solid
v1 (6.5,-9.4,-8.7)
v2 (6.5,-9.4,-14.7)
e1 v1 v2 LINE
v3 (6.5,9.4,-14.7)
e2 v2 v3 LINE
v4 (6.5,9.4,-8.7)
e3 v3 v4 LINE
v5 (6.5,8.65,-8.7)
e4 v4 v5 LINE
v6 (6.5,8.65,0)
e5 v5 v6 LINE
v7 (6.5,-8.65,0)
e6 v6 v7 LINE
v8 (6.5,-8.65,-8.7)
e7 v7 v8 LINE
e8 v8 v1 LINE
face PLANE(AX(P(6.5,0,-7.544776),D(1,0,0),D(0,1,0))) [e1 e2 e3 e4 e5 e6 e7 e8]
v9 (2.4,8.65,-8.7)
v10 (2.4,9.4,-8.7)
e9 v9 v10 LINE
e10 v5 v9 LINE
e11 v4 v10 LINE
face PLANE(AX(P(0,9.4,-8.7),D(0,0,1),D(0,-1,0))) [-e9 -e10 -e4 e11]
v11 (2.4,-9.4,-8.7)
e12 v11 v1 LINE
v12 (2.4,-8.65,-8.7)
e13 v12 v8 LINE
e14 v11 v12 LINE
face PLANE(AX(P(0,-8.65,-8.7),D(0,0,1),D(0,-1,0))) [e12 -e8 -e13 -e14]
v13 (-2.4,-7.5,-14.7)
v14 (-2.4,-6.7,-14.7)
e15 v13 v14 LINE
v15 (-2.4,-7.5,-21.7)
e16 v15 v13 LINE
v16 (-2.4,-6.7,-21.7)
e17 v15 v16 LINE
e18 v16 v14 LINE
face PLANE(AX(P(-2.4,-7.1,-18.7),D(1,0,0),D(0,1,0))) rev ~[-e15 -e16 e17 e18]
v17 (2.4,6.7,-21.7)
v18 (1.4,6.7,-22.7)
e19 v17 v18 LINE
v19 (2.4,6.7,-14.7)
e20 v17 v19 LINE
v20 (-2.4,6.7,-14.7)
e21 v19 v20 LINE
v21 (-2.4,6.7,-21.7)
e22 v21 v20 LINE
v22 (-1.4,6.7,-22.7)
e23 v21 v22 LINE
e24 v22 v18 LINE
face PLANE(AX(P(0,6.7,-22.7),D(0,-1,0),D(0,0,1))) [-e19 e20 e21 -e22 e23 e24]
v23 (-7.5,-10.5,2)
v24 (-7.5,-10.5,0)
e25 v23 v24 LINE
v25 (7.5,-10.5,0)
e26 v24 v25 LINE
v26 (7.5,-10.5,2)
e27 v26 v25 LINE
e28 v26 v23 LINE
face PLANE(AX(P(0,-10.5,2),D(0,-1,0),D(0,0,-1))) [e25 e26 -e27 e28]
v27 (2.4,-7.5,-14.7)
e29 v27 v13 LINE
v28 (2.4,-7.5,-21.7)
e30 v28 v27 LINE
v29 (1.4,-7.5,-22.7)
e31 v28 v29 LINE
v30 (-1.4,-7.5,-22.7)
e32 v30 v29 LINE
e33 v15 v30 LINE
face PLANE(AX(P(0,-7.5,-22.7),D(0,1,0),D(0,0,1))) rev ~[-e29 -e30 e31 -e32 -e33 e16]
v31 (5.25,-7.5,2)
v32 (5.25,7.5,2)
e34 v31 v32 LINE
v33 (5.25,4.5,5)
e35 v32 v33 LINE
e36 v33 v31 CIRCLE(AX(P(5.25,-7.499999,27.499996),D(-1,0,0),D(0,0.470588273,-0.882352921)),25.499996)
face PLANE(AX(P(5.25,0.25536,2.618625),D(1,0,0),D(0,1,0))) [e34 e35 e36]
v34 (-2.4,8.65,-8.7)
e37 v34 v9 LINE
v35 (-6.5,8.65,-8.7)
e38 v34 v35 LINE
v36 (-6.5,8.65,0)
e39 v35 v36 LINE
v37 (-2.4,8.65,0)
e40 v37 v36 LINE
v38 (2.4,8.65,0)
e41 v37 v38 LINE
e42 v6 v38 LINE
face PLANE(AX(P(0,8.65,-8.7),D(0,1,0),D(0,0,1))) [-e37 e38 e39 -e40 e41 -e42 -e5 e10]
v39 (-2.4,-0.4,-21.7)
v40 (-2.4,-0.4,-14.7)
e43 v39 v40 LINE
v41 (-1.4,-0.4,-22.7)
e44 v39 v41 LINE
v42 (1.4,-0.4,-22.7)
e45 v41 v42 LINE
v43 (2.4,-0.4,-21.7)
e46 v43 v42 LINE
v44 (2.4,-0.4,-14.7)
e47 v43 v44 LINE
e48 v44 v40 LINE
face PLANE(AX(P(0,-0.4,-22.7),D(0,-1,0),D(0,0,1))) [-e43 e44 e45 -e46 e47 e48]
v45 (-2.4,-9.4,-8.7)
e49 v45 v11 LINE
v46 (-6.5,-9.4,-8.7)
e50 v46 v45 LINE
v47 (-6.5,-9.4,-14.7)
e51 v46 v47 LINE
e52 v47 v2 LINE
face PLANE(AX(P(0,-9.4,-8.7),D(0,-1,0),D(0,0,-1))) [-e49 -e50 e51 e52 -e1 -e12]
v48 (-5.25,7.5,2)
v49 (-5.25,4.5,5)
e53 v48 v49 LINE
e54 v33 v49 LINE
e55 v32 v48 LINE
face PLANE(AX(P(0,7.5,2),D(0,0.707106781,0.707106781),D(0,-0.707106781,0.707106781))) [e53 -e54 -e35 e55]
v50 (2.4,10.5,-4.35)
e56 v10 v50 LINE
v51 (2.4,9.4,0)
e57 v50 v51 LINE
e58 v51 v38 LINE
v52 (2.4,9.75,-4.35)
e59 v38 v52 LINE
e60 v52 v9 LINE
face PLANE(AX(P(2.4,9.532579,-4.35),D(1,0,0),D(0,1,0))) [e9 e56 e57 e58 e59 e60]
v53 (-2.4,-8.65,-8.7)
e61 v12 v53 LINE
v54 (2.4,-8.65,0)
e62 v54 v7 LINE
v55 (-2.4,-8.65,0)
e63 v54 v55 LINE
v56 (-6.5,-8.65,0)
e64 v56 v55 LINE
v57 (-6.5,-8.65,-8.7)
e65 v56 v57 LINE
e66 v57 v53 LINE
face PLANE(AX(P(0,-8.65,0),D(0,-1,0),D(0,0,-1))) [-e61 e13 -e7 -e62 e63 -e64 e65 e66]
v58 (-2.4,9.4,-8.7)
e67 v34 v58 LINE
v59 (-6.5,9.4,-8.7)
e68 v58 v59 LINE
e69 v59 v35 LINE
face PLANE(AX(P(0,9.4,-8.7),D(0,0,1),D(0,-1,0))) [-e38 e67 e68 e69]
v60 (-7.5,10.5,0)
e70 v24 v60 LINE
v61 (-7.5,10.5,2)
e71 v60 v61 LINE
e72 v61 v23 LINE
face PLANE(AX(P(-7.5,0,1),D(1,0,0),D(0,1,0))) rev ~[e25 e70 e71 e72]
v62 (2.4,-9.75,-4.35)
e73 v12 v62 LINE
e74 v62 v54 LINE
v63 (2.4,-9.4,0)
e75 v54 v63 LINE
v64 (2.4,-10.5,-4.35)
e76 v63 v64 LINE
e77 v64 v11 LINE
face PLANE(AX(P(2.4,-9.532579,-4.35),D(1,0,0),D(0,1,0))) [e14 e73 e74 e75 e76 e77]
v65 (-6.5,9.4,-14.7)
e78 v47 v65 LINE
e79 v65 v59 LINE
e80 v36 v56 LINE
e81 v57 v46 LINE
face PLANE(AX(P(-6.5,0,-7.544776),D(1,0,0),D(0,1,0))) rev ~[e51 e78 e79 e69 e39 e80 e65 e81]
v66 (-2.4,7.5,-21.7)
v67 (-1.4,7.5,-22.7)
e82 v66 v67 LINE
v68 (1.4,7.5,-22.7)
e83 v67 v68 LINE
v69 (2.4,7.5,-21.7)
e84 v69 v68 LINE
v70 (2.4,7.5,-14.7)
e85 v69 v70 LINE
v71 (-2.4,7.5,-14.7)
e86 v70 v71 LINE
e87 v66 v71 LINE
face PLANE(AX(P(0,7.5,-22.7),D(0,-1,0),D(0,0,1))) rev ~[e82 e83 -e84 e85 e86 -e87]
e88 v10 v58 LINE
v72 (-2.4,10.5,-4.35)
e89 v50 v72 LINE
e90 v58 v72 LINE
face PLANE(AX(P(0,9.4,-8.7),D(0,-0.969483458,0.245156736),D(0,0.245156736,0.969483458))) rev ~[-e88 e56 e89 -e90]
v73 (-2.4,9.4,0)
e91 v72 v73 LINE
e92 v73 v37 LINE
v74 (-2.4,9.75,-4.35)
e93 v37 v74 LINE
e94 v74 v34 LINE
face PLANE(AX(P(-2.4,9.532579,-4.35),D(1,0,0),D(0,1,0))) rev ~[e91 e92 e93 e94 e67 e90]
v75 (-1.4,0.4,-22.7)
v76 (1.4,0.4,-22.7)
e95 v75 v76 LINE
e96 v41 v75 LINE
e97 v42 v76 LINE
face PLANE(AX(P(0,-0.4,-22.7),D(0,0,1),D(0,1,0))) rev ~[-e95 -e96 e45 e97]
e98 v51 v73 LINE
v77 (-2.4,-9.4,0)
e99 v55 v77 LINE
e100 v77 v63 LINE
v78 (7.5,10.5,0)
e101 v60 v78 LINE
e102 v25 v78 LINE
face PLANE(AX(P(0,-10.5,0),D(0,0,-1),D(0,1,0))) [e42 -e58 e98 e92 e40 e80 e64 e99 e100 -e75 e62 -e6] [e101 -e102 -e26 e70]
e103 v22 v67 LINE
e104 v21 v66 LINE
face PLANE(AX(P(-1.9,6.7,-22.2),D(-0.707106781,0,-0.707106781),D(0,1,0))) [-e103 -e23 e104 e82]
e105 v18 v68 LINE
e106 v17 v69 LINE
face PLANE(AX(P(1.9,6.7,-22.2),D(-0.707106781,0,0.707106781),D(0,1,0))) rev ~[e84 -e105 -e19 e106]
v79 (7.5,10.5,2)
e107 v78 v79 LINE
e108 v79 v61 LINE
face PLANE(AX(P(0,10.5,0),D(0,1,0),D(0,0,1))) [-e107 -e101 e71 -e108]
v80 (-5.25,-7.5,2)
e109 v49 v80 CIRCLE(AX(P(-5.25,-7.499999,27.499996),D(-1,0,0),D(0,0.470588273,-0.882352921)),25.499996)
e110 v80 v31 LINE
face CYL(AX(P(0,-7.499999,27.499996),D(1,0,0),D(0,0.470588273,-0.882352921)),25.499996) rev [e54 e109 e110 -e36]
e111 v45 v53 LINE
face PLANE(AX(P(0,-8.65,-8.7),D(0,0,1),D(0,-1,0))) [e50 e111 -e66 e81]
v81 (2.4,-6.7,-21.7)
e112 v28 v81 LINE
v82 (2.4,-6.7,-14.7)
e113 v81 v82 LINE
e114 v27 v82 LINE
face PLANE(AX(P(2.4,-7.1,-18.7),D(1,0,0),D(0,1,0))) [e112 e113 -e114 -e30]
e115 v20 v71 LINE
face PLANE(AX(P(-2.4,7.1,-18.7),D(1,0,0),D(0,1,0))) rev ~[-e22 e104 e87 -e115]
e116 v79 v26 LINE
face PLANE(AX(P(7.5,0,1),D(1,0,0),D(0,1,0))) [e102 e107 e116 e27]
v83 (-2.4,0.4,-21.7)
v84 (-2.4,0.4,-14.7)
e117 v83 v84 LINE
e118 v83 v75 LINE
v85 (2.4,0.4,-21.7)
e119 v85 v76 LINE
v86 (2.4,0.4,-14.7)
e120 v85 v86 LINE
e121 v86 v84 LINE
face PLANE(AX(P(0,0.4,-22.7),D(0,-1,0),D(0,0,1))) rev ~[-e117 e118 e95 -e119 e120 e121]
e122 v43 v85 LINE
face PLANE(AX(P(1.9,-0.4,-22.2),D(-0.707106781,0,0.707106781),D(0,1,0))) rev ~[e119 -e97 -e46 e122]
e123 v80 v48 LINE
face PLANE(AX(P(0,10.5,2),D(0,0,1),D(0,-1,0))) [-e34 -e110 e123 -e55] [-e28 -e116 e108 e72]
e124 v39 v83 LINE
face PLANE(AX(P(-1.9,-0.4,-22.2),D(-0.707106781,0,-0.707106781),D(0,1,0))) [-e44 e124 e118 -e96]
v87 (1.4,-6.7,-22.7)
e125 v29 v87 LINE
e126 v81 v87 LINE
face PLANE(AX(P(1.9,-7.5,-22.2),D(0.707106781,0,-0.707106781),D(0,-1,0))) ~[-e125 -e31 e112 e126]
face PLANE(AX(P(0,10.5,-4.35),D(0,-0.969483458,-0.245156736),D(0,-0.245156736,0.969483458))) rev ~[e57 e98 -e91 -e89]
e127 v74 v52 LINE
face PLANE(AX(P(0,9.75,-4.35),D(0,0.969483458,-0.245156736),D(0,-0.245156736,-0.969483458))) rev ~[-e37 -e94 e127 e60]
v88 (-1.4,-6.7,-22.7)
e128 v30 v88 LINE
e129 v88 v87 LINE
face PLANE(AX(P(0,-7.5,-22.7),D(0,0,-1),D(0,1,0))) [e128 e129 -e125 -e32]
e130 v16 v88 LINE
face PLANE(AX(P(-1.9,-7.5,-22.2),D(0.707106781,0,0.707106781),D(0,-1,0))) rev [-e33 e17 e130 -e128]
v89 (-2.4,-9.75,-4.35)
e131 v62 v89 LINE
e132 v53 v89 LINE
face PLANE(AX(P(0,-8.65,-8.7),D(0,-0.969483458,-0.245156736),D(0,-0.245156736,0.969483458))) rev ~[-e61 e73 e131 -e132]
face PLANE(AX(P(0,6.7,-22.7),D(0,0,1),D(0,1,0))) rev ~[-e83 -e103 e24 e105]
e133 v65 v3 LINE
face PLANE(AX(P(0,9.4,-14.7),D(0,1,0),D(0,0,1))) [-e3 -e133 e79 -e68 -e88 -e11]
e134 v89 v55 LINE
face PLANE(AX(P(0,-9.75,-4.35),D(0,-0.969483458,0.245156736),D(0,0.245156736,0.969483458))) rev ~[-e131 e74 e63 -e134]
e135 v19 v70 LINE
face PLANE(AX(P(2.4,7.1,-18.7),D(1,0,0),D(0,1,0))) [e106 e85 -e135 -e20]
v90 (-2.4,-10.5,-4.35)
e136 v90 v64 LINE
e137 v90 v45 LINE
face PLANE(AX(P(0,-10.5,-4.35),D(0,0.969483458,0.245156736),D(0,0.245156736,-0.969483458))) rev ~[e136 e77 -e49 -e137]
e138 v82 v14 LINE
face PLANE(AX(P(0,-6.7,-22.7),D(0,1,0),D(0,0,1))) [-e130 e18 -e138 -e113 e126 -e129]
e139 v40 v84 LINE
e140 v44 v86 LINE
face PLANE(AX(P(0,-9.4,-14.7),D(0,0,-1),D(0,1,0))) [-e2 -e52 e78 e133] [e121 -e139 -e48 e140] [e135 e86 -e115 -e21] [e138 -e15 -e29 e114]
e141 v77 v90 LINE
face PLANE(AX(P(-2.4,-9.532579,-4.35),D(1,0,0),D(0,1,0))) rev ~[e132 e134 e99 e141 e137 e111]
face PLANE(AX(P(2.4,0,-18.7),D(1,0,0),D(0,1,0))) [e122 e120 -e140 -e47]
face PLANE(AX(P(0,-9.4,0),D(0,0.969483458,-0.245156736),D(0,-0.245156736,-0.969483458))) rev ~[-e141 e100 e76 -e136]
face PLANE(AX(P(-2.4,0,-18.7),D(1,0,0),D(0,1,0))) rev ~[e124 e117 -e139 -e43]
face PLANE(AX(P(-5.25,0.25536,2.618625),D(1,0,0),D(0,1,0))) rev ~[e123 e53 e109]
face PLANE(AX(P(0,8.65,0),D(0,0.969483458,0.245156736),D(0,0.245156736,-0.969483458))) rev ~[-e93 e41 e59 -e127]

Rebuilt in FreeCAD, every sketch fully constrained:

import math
import FreeCAD as App
import Part
import Sketcher
from FreeCAD import Vector
Q = App.Units.Quantity


def edges_at(feature, points):
    """Names of the edges that pass closest to the given points."""
    edges = feature.Shape.Edges
    near = lambda p: min(range(len(edges)), key=lambda i: edges[i].distToShape(Part.Vertex(*p))[0])
    return sorted({f"Edge{near(p) + 1}" for p in points})

doc = App.newDocument("Part")
body = doc.addObject("PartDesign::Body", "Body")

# Sketch on YZ plane
sketch1 = doc.addObject("Sketcher::SketchObject", "Sketch")
body.addObject(sketch1)
sketch1.AttachmentSupport = (doc.YZ_Plane, [""])
sketch1.MapMode = "FlatFace"
sketch1.addGeometry([
    Part.LineSegment(Vector(8.7, 0, 0), Vector(-8.7, 0, 0)),  # 0
    Part.LineSegment(Vector(-8.7, 0, 0), Vector(-8.7, -8.7, 0)),  # 1
    Part.LineSegment(Vector(-8.7, -8.7, 0), Vector(-9.4, -8.7, 0)),  # 2
    Part.LineSegment(Vector(-9.4, -8.7, 0), Vector(-9.4, -14.7, 0)),  # 3
    Part.LineSegment(Vector(-9.4, -14.7, 0), Vector(9.4, -14.7, 0)),  # 4
    Part.LineSegment(Vector(9.4, -14.7, 0), Vector(9.4, -8.7, 0)),  # 5
    Part.LineSegment(Vector(9.4, -8.7, 0), Vector(8.7, -8.7, 0)),  # 6
    Part.LineSegment(Vector(8.7, -8.7, 0), Vector(8.7, 0, 0)),  # 7
], False)
sketch1.addConstraint([
    Sketcher.Constraint("Coincident", 0, 2, 1, 1),
    Sketcher.Constraint("Coincident", 1, 2, 2, 1),
    Sketcher.Constraint("Coincident", 2, 2, 3, 1),
    Sketcher.Constraint("Coincident", 3, 2, 4, 1),
    Sketcher.Constraint("Coincident", 4, 2, 5, 1),
    Sketcher.Constraint("Coincident", 5, 2, 6, 1),
    Sketcher.Constraint("Coincident", 6, 2, 7, 1),
    Sketcher.Constraint("Coincident", 7, 2, 0, 1),
    Sketcher.Constraint("Horizontal", 0),
    Sketcher.Constraint("Vertical", 1),
    Sketcher.Constraint("Horizontal", 2),
    Sketcher.Constraint("Vertical", 3),
    Sketcher.Constraint("Horizontal", 4),
    Sketcher.Constraint("Vertical", 5),
    Sketcher.Constraint("Horizontal", 6),
    Sketcher.Constraint("Vertical", 7),
    Sketcher.Constraint("Symmetric", 0, 2, 7, 2, -1, 1),
    Sketcher.Constraint("Symmetric", 2, 2, 5, 2, -2),
    Sketcher.Constraint("DistanceY", 3, 2, 3, 1, 6.0),
    Sketcher.Constraint("DistanceX", 0, 2, 0, 1, 17.3),
    Sketcher.Constraint("DistanceX", 4, 1, 4, 2, 18.8),
    Sketcher.Constraint("DistanceY", 1, 2, 1, 1, 8.7),
])
pad1 = doc.addObject("PartDesign::Pad", "Pad")
body.addObject(pad1)
pad1.Profile = sketch1
pad1.Length = 13
pad1.Midplane = True

# Sketch on YZ plane
sketch2 = doc.addObject("Sketcher::SketchObject", "Sketch001")
body.addObject(sketch2)
sketch2.AttachmentSupport = (doc.YZ_Plane, [""])
sketch2.MapMode = "FlatFace"
sketch2.addGeometry([
    Part.LineSegment(Vector(-10.5, 2, 0), Vector(-10.5, 0, 0)),
    Part.LineSegment(Vector(-10.5, 0, 0), Vector(10.5, 0, 0)),
    Part.LineSegment(Vector(10.5, 0, 0), Vector(10.5, 2, 0)),
    Part.LineSegment(Vector(10.5, 2, 0), Vector(-10.5, 2, 0)),
], False)
sketch2.addConstraint([
    Sketcher.Constraint("Coincident", 0, 2, 1, 1),
    Sketcher.Constraint("Coincident", 1, 2, 2, 1),
    Sketcher.Constraint("Coincident", 2, 2, 3, 1),
    Sketcher.Constraint("Coincident", 3, 2, 0, 1),
    Sketcher.Constraint("Vertical", 0),
    Sketcher.Constraint("Horizontal", 1),
    Sketcher.Constraint("Vertical", 2),
    Sketcher.Constraint("Horizontal", 3),
    Sketcher.Constraint("Symmetric", 0, 2, 1, 2, -1, 1),
    Sketcher.Constraint("DistanceX", 1, 1, 1, 2, 21.0),
    Sketcher.Constraint("DistanceY", 0, 2, 0, 1, 2.0),
])
pad2 = doc.addObject("PartDesign::Pad", "Pad001")
body.addObject(pad2)
pad2.Profile = sketch2
pad2.Length = 15
pad2.Midplane = True

# Sketch on YZ plane
sketch3 = doc.addObject("Sketcher::SketchObject", "Sketch002")
body.addObject(sketch3)
sketch3.AttachmentSupport = (doc.YZ_Plane, [""])
sketch3.MapMode = "FlatFace"
sketch3.addGeometry([
    Part.ArcOfCircle(Part.Circle(Vector(-7.5, 27.5, 0), Vector(0, 0, 1), 25.5), math.radians(-90), math.radians(-62)),
    Part.LineSegment(Vector(-7.5, 2, 0), Vector(7.5, 2, 0)),
    Part.LineSegment(Vector(7.5, 2, 0), Vector(4.5, 5, 0)),
], False)
sketch3.addConstraint([
    Sketcher.Constraint("Tangent", 0, 1, 1, 1),
    Sketcher.Constraint("Coincident", 1, 2, 2, 1),
    Sketcher.Constraint("Coincident", 2, 2, 0, 2),
    Sketcher.Constraint("Horizontal", 1),
    Sketcher.Constraint("DistanceX", 1, 1, 1, 2, 15.0),
    Sketcher.Constraint("Angle", 2, Q("135 deg")),
    Sketcher.Constraint("DistanceY", -1, 1, 0, 1, 2.0),
    Sketcher.Constraint("DistanceY", -1, 1, 2, 2, 5.0),
    Sketcher.Constraint("DistanceX", 0, 3, -1, 1, 7.499999),
])
pad3 = doc.addObject("PartDesign::Pad", "Pad002")
body.addObject(pad3)
pad3.Profile = sketch3
pad3.Length = 10.5
pad3.Midplane = True

# Sketch on YZ plane
sketch4 = doc.addObject("Sketcher::SketchObject", "Sketch003")
body.addObject(sketch4)
sketch4.AttachmentSupport = (doc.YZ_Plane, [""])
sketch4.MapMode = "FlatFace"
sketch4.addGeometry([
    Part.LineSegment(Vector(-8.7, 0, 0), Vector(-9.4, 0, 0)),  # 0
    Part.LineSegment(Vector(-9.4, 0, 0), Vector(-10.5, -4.3, 0)),  # 1
    Part.LineSegment(Vector(-10.5, -4.3, 0), Vector(-9.4, -8.7, 0)),  # 2
    Part.LineSegment(Vector(-9.4, -8.7, 0), Vector(-8.7, -8.7, 0)),  # 3
    Part.LineSegment(Vector(-8.7, -8.7, 0), Vector(-9.8, -4.3, 0)),  # 4
    Part.LineSegment(Vector(-9.8, -4.3, 0), Vector(-8.7, 0, 0)),  # 5
    Part.LineSegment(Vector(9.4, 0, 0), Vector(8.7, 0, 0)),  # 6
    Part.LineSegment(Vector(8.7, 0, 0), Vector(9.8, -4.3, 0)),  # 7
    Part.LineSegment(Vector(9.8, -4.3, 0), Vector(8.7, -8.7, 0)),  # 8
    Part.LineSegment(Vector(8.7, -8.7, 0), Vector(9.4, -8.7, 0)),  # 9
    Part.LineSegment(Vector(9.4, -8.7, 0), Vector(10.5, -4.3, 0)),  # 10
    Part.LineSegment(Vector(10.5, -4.3, 0), Vector(9.4, 0, 0)),  # 11
    Part.LineSegment(Vector(6.7, -14.7, 0), Vector(6.7, -22.7, 0)),  # 12
    Part.LineSegment(Vector(6.7, -22.7, 0), Vector(7.5, -22.7, 0)),  # 13
    Part.LineSegment(Vector(7.5, -22.7, 0), Vector(7.5, -14.7, 0)),  # 14
    Part.LineSegment(Vector(7.5, -14.7, 0), Vector(6.7, -14.7, 0)),  # 15
    Part.LineSegment(Vector(-0.4, -14.7, 0), Vector(-0.4, -22.7, 0)),  # 16
    Part.LineSegment(Vector(-0.4, -22.7, 0), Vector(0.4, -22.7, 0)),  # 17
    Part.LineSegment(Vector(0.4, -22.7, 0), Vector(0.4, -14.7, 0)),  # 18
    Part.LineSegment(Vector(0.4, -14.7, 0), Vector(-0.4, -14.7, 0)),  # 19
    Part.LineSegment(Vector(-7.5, -14.7, 0), Vector(-7.5, -22.7, 0)),  # 20
    Part.LineSegment(Vector(-7.5, -22.7, 0), Vector(-6.7, -22.7, 0)),  # 21
    Part.LineSegment(Vector(-6.7, -22.7, 0), Vector(-6.7, -14.7, 0)),  # 22
    Part.LineSegment(Vector(-6.7, -14.7, 0), Vector(-7.5, -14.7, 0)),  # 23
], False)
sketch4.addConstraint([
    Sketcher.Constraint("Coincident", 0, 2, 1, 1),
    Sketcher.Constraint("Coincident", 1, 2, 2, 1),
    Sketcher.Constraint("Coincident", 2, 2, 3, 1),
    Sketcher.Constraint("Coincident", 3, 2, 4, 1),
    Sketcher.Constraint("Coincident", 4, 2, 5, 1),
    Sketcher.Constraint("Coincident", 5, 2, 0, 1),
    Sketcher.Constraint("Coincident", 6, 2, 7, 1),
    Sketcher.Constraint("Coincident", 7, 2, 8, 1),
    Sketcher.Constraint("Coincident", 8, 2, 9, 1),
    Sketcher.Constraint("Coincident", 9, 2, 10, 1),
    Sketcher.Constraint("Coincident", 10, 2, 11, 1),
    Sketcher.Constraint("Coincident", 11, 2, 6, 1),
    Sketcher.Constraint("Coincident", 12, 2, 13, 1),
    Sketcher.Constraint("Coincident", 13, 2, 14, 1),
    Sketcher.Constraint("Coincident", 14, 2, 15, 1),
    Sketcher.Constraint("Coincident", 15, 2, 12, 1),
    Sketcher.Constraint("Coincident", 16, 2, 17, 1),
    Sketcher.Constraint("Coincident", 17, 2, 18, 1),
    Sketcher.Constraint("Coincident", 18, 2, 19, 1),
    Sketcher.Constraint("Coincident", 19, 2, 16, 1),
    Sketcher.Constraint("Coincident", 20, 2, 21, 1),
    Sketcher.Constraint("Coincident", 21, 2, 22, 1),
    Sketcher.Constraint("Coincident", 22, 2, 23, 1),
    Sketcher.Constraint("Coincident", 23, 2, 20, 1),
    Sketcher.Constraint("Horizontal", 0),
    Sketcher.Constraint("Horizontal", 3),
    Sketcher.Constraint("Horizontal", 6),
    Sketcher.Constraint("Horizontal", 9),
    Sketcher.Constraint("Vertical", 12),
    Sketcher.Constraint("Horizontal", 13),
    Sketcher.Constraint("Vertical", 14),
    Sketcher.Constraint("Horizontal", 15),
    Sketcher.Constraint("Vertical", 16),
    Sketcher.Constraint("Horizontal", 17),
    Sketcher.Constraint("Vertical", 18),
    Sketcher.Constraint("Horizontal", 19),
    Sketcher.Constraint("Vertical", 20),
    Sketcher.Constraint("Horizontal", 21),
    Sketcher.Constraint("Vertical", 22),
    Sketcher.Constraint("Horizontal", 23),
    Sketcher.Constraint("Symmetric", 5, 2, 6, 2, -1, 1),
    Sketcher.Constraint("Symmetric", 4, 2, 7, 2, -2),
    Sketcher.Constraint("Symmetric", 3, 2, 8, 2, -2),
    Sketcher.Constraint("Symmetric", 1, 2, 10, 2, -2),
    Sketcher.Constraint("Symmetric", 0, 2, 11, 2, -2),
    Sketcher.Constraint("Symmetric", 13, 2, 20, 2, -2),
    Sketcher.Constraint("Symmetric", 15, 2, 22, 2, -2),
    Sketcher.Constraint("Parallel", 2, 4),
    Sketcher.Constraint("Parallel", 1, 5),
    Sketcher.Constraint("Parallel", 4, 7),
    Sketcher.Constraint("Parallel", 8, 10),
    Sketcher.Constraint("Horizontal", 1, 2, 4, 2),
    Sketcher.Constraint("Horizontal", 13, 2, 16, 2),
    Sketcher.Constraint("Horizontal", 15, 2, 18, 2),
    Sketcher.Constraint("Vertical", 0, 2, 2, 2),
    Sketcher.Constraint("Equal", 15, 17),
    Sketcher.Constraint("DistanceY", 12, 2, 12, 1, 8.0),
    Sketcher.Constraint("DistanceX", 13, 1, 13, 2, 0.8),
    Sketcher.Constraint("DistanceY", 12, 2, 8, 2, 14.0),
    Sketcher.Constraint("DistanceX", 13, 2, 10, 2, 3.0),
    Sketcher.Constraint("DistanceX", 0, 2, 0, 1, 0.75),
    Sketcher.Constraint("DistanceX", 0, 2, -1, 1, 9.4),
    Sketcher.Constraint("DistanceX", 1, 2, -1, 1, 10.5),
    Sketcher.Constraint("DistanceY", 2, 2, -1, 1, 8.7),
    Sketcher.Constraint("DistanceX", 16, 2, -1, 1, 0.4),
])
pad4 = doc.addObject("PartDesign::Pad", "Pad003")
body.addObject(pad4)
pad4.Profile = sketch4
pad4.Length = 4.8
pad4.Midplane = True
doc.recompute()

chamfer = doc.addObject("PartDesign::Chamfer", "Chamfer")
body.addObject(chamfer)
chamfer.Base = (pad4, edges_at(pad4, [
    (2.4, -7.1, -22.7),
    (2.4, 0, -22.7),
    (-2.4, 7.1, -22.7),
    (2.4, 7.1, -22.7),
    (-2.4, 0, -22.7),
    (-2.4, -7.1, -22.7),
]))
chamfer.Size = 1

doc.recompute()
